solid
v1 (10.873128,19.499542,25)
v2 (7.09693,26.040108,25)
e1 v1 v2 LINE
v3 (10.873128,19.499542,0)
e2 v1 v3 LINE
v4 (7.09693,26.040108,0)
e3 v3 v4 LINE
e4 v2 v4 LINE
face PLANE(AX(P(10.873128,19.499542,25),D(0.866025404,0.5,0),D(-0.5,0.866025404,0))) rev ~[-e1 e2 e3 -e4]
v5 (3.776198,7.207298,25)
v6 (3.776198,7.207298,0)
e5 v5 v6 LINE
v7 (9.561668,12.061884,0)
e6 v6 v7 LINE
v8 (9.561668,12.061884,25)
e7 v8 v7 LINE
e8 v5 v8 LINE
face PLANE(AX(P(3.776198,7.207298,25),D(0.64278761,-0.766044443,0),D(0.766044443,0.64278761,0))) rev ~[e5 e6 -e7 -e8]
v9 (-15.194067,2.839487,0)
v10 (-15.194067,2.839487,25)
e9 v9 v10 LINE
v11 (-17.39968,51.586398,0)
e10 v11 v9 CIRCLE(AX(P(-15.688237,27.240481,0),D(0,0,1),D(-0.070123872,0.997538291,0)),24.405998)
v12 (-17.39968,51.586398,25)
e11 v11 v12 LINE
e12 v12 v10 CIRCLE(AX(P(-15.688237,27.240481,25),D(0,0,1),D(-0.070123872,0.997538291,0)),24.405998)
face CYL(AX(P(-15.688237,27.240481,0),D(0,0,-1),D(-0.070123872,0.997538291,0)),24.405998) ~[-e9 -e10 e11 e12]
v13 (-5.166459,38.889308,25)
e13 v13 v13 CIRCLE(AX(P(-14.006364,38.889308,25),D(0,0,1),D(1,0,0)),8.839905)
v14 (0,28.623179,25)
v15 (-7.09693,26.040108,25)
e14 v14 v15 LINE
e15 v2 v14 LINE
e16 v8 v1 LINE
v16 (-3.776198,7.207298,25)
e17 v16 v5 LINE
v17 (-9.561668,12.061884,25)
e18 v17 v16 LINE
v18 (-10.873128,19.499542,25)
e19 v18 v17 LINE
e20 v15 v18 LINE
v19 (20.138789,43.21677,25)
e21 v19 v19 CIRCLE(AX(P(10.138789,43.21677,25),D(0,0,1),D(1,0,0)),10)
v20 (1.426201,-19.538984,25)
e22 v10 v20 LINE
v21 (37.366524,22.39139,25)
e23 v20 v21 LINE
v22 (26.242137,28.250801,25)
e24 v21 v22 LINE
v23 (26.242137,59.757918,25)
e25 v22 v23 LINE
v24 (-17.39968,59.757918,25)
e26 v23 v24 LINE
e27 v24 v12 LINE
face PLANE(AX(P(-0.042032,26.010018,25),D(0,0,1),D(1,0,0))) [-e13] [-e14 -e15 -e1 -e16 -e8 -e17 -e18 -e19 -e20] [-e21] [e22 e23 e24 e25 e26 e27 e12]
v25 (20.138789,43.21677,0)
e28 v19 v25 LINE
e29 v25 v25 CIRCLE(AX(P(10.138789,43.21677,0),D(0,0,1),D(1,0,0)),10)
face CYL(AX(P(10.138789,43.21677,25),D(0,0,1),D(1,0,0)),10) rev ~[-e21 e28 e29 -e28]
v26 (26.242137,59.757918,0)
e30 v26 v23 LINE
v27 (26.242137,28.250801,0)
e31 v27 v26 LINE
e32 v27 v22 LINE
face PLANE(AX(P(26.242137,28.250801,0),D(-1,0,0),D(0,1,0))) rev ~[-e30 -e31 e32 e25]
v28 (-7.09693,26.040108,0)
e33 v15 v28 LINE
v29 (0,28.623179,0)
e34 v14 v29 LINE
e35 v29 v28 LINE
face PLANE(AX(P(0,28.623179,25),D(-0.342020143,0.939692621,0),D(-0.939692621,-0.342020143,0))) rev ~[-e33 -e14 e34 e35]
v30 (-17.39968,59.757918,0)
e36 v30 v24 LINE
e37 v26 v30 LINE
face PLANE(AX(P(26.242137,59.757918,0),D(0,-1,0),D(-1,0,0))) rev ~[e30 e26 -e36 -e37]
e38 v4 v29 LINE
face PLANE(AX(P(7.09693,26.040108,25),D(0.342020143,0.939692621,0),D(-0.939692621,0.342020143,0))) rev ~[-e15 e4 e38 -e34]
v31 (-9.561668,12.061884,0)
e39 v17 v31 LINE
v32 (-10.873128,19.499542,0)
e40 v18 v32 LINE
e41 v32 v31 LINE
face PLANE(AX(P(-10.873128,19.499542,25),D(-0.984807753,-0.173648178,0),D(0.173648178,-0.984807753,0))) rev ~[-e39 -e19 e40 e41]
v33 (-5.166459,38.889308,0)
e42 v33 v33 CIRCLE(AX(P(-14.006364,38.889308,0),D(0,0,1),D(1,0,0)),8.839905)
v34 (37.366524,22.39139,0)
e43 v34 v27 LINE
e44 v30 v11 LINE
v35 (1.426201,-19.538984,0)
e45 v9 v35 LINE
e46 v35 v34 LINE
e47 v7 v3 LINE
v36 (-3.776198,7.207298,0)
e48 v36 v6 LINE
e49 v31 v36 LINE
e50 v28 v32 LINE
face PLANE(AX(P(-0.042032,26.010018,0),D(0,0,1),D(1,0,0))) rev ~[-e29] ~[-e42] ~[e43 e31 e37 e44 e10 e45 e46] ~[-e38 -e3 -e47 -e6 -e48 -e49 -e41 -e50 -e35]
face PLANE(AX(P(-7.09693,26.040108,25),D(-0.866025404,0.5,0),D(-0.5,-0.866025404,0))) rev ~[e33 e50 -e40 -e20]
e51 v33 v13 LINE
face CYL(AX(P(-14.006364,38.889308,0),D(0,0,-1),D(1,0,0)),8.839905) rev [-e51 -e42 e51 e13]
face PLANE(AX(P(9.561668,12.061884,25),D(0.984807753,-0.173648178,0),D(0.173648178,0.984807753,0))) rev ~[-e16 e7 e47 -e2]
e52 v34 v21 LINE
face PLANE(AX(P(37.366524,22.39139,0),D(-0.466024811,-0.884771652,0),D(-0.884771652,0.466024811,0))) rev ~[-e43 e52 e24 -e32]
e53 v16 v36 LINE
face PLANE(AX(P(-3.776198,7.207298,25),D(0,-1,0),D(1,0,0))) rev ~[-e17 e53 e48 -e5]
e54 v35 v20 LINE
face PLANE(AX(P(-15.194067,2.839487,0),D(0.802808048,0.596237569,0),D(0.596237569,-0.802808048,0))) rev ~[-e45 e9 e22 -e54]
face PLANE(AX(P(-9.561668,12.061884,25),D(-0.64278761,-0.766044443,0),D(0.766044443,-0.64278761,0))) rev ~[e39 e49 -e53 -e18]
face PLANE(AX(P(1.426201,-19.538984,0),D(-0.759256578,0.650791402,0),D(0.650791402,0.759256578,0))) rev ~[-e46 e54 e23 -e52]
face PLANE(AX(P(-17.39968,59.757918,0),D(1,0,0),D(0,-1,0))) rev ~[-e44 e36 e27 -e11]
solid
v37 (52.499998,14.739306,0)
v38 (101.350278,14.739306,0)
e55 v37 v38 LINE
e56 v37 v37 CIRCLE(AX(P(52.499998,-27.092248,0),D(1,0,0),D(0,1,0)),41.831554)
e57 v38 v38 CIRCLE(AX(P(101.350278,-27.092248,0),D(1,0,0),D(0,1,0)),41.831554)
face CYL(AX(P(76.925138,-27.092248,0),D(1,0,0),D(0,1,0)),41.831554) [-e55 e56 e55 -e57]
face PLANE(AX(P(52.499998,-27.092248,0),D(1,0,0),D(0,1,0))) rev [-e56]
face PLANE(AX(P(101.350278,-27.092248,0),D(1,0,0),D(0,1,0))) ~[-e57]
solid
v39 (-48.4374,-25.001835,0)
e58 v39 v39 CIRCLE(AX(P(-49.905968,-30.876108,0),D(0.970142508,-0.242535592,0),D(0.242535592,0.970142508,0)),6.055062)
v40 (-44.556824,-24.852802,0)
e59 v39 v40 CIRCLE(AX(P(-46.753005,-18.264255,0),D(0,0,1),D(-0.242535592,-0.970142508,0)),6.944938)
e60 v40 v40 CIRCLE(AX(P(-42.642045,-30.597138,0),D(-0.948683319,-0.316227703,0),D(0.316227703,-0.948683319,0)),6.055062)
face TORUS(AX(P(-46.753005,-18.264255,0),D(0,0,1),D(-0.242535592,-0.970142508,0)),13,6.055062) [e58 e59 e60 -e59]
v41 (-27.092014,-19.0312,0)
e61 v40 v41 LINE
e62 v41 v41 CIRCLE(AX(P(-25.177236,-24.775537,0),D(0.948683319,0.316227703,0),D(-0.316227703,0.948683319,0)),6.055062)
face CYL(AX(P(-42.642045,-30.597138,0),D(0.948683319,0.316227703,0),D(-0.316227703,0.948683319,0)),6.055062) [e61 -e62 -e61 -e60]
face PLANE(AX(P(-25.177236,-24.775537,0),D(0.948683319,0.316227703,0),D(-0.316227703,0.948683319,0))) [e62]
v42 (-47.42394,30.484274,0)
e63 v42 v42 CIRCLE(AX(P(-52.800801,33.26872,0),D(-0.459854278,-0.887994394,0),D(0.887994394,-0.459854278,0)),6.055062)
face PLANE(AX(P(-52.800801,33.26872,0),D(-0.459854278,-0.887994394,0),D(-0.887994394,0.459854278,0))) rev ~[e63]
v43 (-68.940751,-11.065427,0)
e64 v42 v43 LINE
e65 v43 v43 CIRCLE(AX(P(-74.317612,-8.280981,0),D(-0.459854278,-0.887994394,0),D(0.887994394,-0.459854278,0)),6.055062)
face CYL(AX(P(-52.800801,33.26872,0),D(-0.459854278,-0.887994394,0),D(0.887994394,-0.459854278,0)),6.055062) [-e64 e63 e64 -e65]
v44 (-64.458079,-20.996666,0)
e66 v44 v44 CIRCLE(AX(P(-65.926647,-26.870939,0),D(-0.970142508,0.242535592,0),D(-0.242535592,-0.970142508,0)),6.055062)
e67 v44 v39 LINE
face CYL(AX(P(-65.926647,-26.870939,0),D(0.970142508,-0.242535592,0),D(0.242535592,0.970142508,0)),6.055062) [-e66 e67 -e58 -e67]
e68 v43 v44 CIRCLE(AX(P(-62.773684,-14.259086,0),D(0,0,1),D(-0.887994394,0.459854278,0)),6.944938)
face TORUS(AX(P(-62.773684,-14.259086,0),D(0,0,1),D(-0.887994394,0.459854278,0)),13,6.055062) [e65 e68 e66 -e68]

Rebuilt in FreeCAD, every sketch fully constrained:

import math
import FreeCAD as App
import Part
import Sketcher
Q = App.Units.Quantity


def add_polygon(sketch, points):
    """Adds a closed chain of lines whose ends are joined by coincident constraints."""
    first, n = sketch.GeometryCount, len(points)
    for a, b in zip(points, points[1:] + points[:1]):
        sketch.addGeometry(Part.LineSegment(App.Vector(*a, 0), App.Vector(*b, 0)), False)
    for i in range(n):
        sketch.addConstraint(Sketcher.Constraint("Coincident", first + i, 2, first + (i + 1) % n, 1))

doc = App.newDocument("Part")
body = doc.addObject("PartDesign::Body", "Body")

sketch1 = doc.addObject("Sketcher::SketchObject", "Sketch")
body.addObject(sketch1)
sketch1.AttachmentSupport = (doc.XY_Plane, [""])
sketch1.MapMode = "FlatFace"
sketch1.addGeometry([
    Part.LineSegment(App.Vector(37.366524, 22.39139, 0), App.Vector(26.242137, 28.250801, 0)),
    Part.LineSegment(App.Vector(26.242137, 28.250801, 0), App.Vector(26.242137, 59.757918, 0)),
    Part.LineSegment(App.Vector(26.242137, 59.757918, 0), App.Vector(-17.39968, 59.757918, 0)),
    Part.LineSegment(App.Vector(-17.39968, 59.757918, 0), App.Vector(-17.39968, 51.586398, 0)),
    Part.ArcOfCircle(Part.Circle(App.Vector(-15.688237, 27.240481, 0), App.Vector(0, 0, 1), 24.405998), math.radians(94.021102), math.radians(271.160198)),
    Part.LineSegment(App.Vector(-15.194067, 2.839487, 0), App.Vector(1.426201, -19.538984, 0)),
    Part.LineSegment(App.Vector(1.426201, -19.538984, 0), App.Vector(37.366524, 22.39139, 0)),
    Part.Circle(App.Vector(-14.006364, 38.889308, 0), App.Vector(0, 0, 1), 8.839905),
], False)
sketch1.addConstraint([
    Sketcher.Constraint("Coincident", 0, 2, 1, 1),
    Sketcher.Constraint("Coincident", 1, 2, 2, 1),
    Sketcher.Constraint("Coincident", 2, 2, 3, 1),
    Sketcher.Constraint("Coincident", 3, 2, 4, 1),
    Sketcher.Constraint("Coincident", 4, 2, 5, 1),
    Sketcher.Constraint("Coincident", 5, 2, 6, 1),
    Sketcher.Constraint("Coincident", 6, 2, 0, 1),
    Sketcher.Constraint("Vertical", 1),
    Sketcher.Constraint("Horizontal", 2),
    Sketcher.Constraint("Vertical", 3),
    Sketcher.Constraint("Diameter", 7, 17.679809),
    Sketcher.Constraint("Radius", 4, 24.405998),
    Sketcher.Constraint("DistanceY", 3, 2, 3, 1, 8.17152),
    Sketcher.Constraint("DistanceY", -1, 1, 0, 2, 28.250801),
    Sketcher.Constraint("DistanceY", -1, 1, 3, 2, 51.586398),
    Sketcher.Constraint("DistanceX", -1, 1, 5, 2, 1.426201),
    Sketcher.Constraint("DistanceX", 7, 3, 0, 2, 40.248501),
    Sketcher.Constraint("DistanceX", 2, 2, 2, 1, 43.641817),
    Sketcher.Constraint("DistanceY", -1, 1, 4, 3, 27.240481),
    Sketcher.Constraint("DistanceX", 2, 2, -1, 1, 17.39968),
    Sketcher.Constraint("DistanceY", -1, 1, 6, 2, 22.39139),
    Sketcher.Constraint("DistanceY", 7, 3, 1, 2, 20.868611),
    Sketcher.Constraint("DistanceX", 4, 3, 4, 2, 0.49417),
    Sketcher.Constraint("DistanceY", 5, 2, 4, 2, 22.378471),
    Sketcher.Constraint("DistanceX", 4, 3, 6, 2, 53.054761),
])
pad1 = doc.addObject("PartDesign::Pad", "Pad")
body.addObject(pad1)
pad1.Profile = sketch1
pad1.Length = 25

sketch2 = doc.addObject("Sketcher::SketchObject", "Sketch001")
body.addObject(sketch2)
sketch2.AttachmentSupport = (doc.XY_Plane, [""])
sketch2.MapMode = "FlatFace"
sketch2.AttachmentOffset = App.Placement(App.Vector(0, 0, 25), App.Rotation())
add_polygon(sketch2, [(-3.776198, 7.207298), (3.776198, 7.207298), (9.561668, 12.061884), (10.873128, 19.499542), (7.09693, 26.040108), (0, 28.623179), (-7.09693, 26.040108), (-10.873128, 19.499542), (-9.561668, 12.061884)])
sketch2.addGeometry(Part.Circle(App.Vector(10.138789, 43.21677, 0), App.Vector(0, 0, 1), 10), False)
sketch2.addConstraint([
    Sketcher.Constraint("Horizontal", 0),
    Sketcher.Constraint("Symmetric", 3, 2, 5, 2, -2),
    Sketcher.Constraint("Symmetric", 2, 2, 6, 2, -2),
    Sketcher.Constraint("Symmetric", 1, 2, 7, 2, -2),
    Sketcher.Constraint("PointOnObject", 4, 2, -2),
    Sketcher.Constraint("Equal", 1, 2),
    Sketcher.Constraint("Equal", 2, 3),
    Sketcher.Constraint("Equal", 3, 4),
    Sketcher.Constraint("Equal", 7, 8),
    Sketcher.Constraint("Diameter", 9, 20.0),
    Sketcher.Constraint("Angle", 1, Q("40 deg")),
    Sketcher.Constraint("Angle", 2, Q("80 deg")),
    Sketcher.Constraint("Angle", 3, Q("120 deg")),
    Sketcher.Constraint("Angle", 4, Q("160 deg")),
    Sketcher.Constraint("DistanceY", -1, 1, 0, 2, 7.207298),
    Sketcher.Constraint("DistanceX", 5, 2, 1, 2, 16.658598),
    Sketcher.Constraint("DistanceX", -1, 1, 9, 3, 10.138789),
    Sketcher.Constraint("DistanceY", -1, 1, 9, 3, 43.21677),
])
pocket1 = doc.addObject("PartDesign::Pocket", "Pocket")
body.addObject(pocket1)
pocket1.Profile = sketch2
pocket1.Length = 25
body2 = doc.addObject("PartDesign::Body", "Body001")

sketch3 = doc.addObject("Sketcher::SketchObject", "Sketch002")
body2.addObject(sketch3)
sketch3.AttachmentSupport = (doc.getObject("XY_Plane001"), [""])
sketch3.MapMode = "FlatFace"
add_polygon(sketch3, [(52.499998, 14.739306), (52.499998, -27.092248), (101.350278, -27.092248), (101.350278, 14.739306)])
sketch3.addGeometry(Part.LineSegment(App.Vector(52.499998, -27.092248, 0), App.Vector(101.350278, -27.092248, 0)), True)
sketch3.addConstraint([
    Sketcher.Constraint("Vertical", 0),
    Sketcher.Constraint("Horizontal", 1),
    Sketcher.Constraint("Vertical", 2),
    Sketcher.Constraint("Horizontal", 3),
    Sketcher.Constraint("Horizontal", 4),
    Sketcher.Constraint("Coincident", 4, 1, 0, 2),
    Sketcher.Constraint("Vertical", 2, 2, 4, 2),
    Sketcher.Constraint("DistanceX", -1, 1, 0, 2, 52.499998),
    Sketcher.Constraint("DistanceX", 1, 1, 1, 2, 48.850279),
    Sketcher.Constraint("DistanceY", 0, 2, 0, 1, 41.831554),
    Sketcher.Constraint("DistanceY", 0, 2, -1, 1, 27.092248),
])
revolution = doc.addObject("PartDesign::Revolution", "Revolution")
body2.addObject(revolution)
revolution.Profile = sketch3
revolution.ReferenceAxis = (sketch3, ["Axis0"])
revolution.Angle = 360
body3 = doc.addObject("PartDesign::Body", "Body002")

sketch4 = doc.addObject("Sketcher::SketchObject", "Sketch003")
body3.addObject(sketch4)
sketch4.Placement = App.Placement(App.Vector(2.419644, 4.672416, 0), App.Rotation(App.Vector(0.887994394, -0.459854278, 0), App.Vector(0, 0, 1.000000001), App.Vector(-0.459854278, -0.887994394, 0), "ZXY"))
sketch4.addGeometry(Part.Circle(App.Vector(-62.185578, 0, 0), App.Vector(0, 0, 1), 6.055062), False)
sketch4.addConstraint([
    Sketcher.Constraint("PointOnObject", 0, 3, -1),
    Sketcher.Constraint("Diameter", 0, 12.110124),
    Sketcher.Constraint("DistanceX", 0, 3, -1, 1, 62.185578),
])

sketch5 = doc.addObject("Sketcher::SketchObject", "Sketch004")
body3.addObject(sketch5)
sketch5.AttachmentSupport = (doc.getObject("XY_Plane002"), [""])
sketch5.MapMode = "FlatFace"
sketch5.addGeometry([
    Part.LineSegment(App.Vector(-52.800801, 33.26872, 0), App.Vector(-74.317612, -8.280981, 0)),
    Part.ArcOfCircle(Part.Circle(App.Vector(-62.773684, -14.259086, 0), App.Vector(0, 0, 1), 13), math.radians(152.622295), math.radians(255.963758)),
    Part.LineSegment(App.Vector(-65.926647, -26.870939, 0), App.Vector(-49.905968, -30.876108, 0)),
    Part.ArcOfCircle(Part.Circle(App.Vector(-46.753005, -18.264255, 0), App.Vector(0, 0, 1), 13), math.radians(-104.036242), math.radians(-71.565055)),
    Part.LineSegment(App.Vector(-42.642045, -30.597138, 0), App.Vector(-25.177236, -24.775537, 0)),
], False)
sketch5.addConstraint([
    Sketcher.Constraint("Tangent", 0, 2, 1, 1),
    Sketcher.Constraint("Tangent", 1, 2, 2, 1),
    Sketcher.Constraint("Tangent", 2, 2, 3, 1),
    Sketcher.Constraint("Tangent", 3, 2, 4, 1),
    Sketcher.Constraint("Equal", 1, 3),
    Sketcher.Constraint("Radius", 1, 13.0),
    Sketcher.Constraint("Distance", 0, 46.790499),
    Sketcher.Constraint("DistanceX", 0, 1, -1, 1, 52.800801),
    Sketcher.Constraint("DistanceY", 0, 2, 0, 1, 41.5497),
    Sketcher.Constraint("DistanceX", 1, 2, 3, 2, 23.284602),
    Sketcher.Constraint("DistanceY", 3, 2, 1, 2, 3.7262),
    Sketcher.Constraint("DistanceY", 3, 2, 4, 2, 5.821602),
    Sketcher.Constraint("DistanceY", -1, 1, 0, 1, 33.26872),
    Sketcher.Constraint("DistanceY", 1, 2, -1, 1, 26.870939),
])
doc.recompute()

additivepipe = doc.addObject("PartDesign::AdditivePipe", "AdditivePipe")
body3.addObject(additivepipe)
additivepipe.Profile = sketch4
additivepipe.Spine = (sketch5, ["Edge1", "Edge2", "Edge3", "Edge4", "Edge5"])

sketch6 = doc.addObject("Sketcher::SketchObject", "Sketch005")
body3.addObject(sketch6)
sketch6.Placement = App.Placement(App.Vector(2.419644, 4.672416, 0), App.Rotation(App.Vector(0.887994394, -0.459854278, 0), App.Vector(0, 0, 1.000000001), App.Vector(-0.459854278, -0.887994394, 0), "ZXY"))
sketch6.addGeometry(Part.Circle(App.Vector(-62.185578, 0, 0), App.Vector(0, 0, 1), 6.055062), False)
sketch6.addConstraint([
    Sketcher.Constraint("PointOnObject", 0, 3, -1),
    Sketcher.Constraint("Diameter", 0, 12.110124),
    Sketcher.Constraint("DistanceX", 0, 3, -1, 1, 62.185578),
])
pad2 = doc.addObject("PartDesign::Pad", "Pad001")
body3.addObject(pad2)
pad2.Profile = sketch6
pad2.Length = 25

doc.recompute()
